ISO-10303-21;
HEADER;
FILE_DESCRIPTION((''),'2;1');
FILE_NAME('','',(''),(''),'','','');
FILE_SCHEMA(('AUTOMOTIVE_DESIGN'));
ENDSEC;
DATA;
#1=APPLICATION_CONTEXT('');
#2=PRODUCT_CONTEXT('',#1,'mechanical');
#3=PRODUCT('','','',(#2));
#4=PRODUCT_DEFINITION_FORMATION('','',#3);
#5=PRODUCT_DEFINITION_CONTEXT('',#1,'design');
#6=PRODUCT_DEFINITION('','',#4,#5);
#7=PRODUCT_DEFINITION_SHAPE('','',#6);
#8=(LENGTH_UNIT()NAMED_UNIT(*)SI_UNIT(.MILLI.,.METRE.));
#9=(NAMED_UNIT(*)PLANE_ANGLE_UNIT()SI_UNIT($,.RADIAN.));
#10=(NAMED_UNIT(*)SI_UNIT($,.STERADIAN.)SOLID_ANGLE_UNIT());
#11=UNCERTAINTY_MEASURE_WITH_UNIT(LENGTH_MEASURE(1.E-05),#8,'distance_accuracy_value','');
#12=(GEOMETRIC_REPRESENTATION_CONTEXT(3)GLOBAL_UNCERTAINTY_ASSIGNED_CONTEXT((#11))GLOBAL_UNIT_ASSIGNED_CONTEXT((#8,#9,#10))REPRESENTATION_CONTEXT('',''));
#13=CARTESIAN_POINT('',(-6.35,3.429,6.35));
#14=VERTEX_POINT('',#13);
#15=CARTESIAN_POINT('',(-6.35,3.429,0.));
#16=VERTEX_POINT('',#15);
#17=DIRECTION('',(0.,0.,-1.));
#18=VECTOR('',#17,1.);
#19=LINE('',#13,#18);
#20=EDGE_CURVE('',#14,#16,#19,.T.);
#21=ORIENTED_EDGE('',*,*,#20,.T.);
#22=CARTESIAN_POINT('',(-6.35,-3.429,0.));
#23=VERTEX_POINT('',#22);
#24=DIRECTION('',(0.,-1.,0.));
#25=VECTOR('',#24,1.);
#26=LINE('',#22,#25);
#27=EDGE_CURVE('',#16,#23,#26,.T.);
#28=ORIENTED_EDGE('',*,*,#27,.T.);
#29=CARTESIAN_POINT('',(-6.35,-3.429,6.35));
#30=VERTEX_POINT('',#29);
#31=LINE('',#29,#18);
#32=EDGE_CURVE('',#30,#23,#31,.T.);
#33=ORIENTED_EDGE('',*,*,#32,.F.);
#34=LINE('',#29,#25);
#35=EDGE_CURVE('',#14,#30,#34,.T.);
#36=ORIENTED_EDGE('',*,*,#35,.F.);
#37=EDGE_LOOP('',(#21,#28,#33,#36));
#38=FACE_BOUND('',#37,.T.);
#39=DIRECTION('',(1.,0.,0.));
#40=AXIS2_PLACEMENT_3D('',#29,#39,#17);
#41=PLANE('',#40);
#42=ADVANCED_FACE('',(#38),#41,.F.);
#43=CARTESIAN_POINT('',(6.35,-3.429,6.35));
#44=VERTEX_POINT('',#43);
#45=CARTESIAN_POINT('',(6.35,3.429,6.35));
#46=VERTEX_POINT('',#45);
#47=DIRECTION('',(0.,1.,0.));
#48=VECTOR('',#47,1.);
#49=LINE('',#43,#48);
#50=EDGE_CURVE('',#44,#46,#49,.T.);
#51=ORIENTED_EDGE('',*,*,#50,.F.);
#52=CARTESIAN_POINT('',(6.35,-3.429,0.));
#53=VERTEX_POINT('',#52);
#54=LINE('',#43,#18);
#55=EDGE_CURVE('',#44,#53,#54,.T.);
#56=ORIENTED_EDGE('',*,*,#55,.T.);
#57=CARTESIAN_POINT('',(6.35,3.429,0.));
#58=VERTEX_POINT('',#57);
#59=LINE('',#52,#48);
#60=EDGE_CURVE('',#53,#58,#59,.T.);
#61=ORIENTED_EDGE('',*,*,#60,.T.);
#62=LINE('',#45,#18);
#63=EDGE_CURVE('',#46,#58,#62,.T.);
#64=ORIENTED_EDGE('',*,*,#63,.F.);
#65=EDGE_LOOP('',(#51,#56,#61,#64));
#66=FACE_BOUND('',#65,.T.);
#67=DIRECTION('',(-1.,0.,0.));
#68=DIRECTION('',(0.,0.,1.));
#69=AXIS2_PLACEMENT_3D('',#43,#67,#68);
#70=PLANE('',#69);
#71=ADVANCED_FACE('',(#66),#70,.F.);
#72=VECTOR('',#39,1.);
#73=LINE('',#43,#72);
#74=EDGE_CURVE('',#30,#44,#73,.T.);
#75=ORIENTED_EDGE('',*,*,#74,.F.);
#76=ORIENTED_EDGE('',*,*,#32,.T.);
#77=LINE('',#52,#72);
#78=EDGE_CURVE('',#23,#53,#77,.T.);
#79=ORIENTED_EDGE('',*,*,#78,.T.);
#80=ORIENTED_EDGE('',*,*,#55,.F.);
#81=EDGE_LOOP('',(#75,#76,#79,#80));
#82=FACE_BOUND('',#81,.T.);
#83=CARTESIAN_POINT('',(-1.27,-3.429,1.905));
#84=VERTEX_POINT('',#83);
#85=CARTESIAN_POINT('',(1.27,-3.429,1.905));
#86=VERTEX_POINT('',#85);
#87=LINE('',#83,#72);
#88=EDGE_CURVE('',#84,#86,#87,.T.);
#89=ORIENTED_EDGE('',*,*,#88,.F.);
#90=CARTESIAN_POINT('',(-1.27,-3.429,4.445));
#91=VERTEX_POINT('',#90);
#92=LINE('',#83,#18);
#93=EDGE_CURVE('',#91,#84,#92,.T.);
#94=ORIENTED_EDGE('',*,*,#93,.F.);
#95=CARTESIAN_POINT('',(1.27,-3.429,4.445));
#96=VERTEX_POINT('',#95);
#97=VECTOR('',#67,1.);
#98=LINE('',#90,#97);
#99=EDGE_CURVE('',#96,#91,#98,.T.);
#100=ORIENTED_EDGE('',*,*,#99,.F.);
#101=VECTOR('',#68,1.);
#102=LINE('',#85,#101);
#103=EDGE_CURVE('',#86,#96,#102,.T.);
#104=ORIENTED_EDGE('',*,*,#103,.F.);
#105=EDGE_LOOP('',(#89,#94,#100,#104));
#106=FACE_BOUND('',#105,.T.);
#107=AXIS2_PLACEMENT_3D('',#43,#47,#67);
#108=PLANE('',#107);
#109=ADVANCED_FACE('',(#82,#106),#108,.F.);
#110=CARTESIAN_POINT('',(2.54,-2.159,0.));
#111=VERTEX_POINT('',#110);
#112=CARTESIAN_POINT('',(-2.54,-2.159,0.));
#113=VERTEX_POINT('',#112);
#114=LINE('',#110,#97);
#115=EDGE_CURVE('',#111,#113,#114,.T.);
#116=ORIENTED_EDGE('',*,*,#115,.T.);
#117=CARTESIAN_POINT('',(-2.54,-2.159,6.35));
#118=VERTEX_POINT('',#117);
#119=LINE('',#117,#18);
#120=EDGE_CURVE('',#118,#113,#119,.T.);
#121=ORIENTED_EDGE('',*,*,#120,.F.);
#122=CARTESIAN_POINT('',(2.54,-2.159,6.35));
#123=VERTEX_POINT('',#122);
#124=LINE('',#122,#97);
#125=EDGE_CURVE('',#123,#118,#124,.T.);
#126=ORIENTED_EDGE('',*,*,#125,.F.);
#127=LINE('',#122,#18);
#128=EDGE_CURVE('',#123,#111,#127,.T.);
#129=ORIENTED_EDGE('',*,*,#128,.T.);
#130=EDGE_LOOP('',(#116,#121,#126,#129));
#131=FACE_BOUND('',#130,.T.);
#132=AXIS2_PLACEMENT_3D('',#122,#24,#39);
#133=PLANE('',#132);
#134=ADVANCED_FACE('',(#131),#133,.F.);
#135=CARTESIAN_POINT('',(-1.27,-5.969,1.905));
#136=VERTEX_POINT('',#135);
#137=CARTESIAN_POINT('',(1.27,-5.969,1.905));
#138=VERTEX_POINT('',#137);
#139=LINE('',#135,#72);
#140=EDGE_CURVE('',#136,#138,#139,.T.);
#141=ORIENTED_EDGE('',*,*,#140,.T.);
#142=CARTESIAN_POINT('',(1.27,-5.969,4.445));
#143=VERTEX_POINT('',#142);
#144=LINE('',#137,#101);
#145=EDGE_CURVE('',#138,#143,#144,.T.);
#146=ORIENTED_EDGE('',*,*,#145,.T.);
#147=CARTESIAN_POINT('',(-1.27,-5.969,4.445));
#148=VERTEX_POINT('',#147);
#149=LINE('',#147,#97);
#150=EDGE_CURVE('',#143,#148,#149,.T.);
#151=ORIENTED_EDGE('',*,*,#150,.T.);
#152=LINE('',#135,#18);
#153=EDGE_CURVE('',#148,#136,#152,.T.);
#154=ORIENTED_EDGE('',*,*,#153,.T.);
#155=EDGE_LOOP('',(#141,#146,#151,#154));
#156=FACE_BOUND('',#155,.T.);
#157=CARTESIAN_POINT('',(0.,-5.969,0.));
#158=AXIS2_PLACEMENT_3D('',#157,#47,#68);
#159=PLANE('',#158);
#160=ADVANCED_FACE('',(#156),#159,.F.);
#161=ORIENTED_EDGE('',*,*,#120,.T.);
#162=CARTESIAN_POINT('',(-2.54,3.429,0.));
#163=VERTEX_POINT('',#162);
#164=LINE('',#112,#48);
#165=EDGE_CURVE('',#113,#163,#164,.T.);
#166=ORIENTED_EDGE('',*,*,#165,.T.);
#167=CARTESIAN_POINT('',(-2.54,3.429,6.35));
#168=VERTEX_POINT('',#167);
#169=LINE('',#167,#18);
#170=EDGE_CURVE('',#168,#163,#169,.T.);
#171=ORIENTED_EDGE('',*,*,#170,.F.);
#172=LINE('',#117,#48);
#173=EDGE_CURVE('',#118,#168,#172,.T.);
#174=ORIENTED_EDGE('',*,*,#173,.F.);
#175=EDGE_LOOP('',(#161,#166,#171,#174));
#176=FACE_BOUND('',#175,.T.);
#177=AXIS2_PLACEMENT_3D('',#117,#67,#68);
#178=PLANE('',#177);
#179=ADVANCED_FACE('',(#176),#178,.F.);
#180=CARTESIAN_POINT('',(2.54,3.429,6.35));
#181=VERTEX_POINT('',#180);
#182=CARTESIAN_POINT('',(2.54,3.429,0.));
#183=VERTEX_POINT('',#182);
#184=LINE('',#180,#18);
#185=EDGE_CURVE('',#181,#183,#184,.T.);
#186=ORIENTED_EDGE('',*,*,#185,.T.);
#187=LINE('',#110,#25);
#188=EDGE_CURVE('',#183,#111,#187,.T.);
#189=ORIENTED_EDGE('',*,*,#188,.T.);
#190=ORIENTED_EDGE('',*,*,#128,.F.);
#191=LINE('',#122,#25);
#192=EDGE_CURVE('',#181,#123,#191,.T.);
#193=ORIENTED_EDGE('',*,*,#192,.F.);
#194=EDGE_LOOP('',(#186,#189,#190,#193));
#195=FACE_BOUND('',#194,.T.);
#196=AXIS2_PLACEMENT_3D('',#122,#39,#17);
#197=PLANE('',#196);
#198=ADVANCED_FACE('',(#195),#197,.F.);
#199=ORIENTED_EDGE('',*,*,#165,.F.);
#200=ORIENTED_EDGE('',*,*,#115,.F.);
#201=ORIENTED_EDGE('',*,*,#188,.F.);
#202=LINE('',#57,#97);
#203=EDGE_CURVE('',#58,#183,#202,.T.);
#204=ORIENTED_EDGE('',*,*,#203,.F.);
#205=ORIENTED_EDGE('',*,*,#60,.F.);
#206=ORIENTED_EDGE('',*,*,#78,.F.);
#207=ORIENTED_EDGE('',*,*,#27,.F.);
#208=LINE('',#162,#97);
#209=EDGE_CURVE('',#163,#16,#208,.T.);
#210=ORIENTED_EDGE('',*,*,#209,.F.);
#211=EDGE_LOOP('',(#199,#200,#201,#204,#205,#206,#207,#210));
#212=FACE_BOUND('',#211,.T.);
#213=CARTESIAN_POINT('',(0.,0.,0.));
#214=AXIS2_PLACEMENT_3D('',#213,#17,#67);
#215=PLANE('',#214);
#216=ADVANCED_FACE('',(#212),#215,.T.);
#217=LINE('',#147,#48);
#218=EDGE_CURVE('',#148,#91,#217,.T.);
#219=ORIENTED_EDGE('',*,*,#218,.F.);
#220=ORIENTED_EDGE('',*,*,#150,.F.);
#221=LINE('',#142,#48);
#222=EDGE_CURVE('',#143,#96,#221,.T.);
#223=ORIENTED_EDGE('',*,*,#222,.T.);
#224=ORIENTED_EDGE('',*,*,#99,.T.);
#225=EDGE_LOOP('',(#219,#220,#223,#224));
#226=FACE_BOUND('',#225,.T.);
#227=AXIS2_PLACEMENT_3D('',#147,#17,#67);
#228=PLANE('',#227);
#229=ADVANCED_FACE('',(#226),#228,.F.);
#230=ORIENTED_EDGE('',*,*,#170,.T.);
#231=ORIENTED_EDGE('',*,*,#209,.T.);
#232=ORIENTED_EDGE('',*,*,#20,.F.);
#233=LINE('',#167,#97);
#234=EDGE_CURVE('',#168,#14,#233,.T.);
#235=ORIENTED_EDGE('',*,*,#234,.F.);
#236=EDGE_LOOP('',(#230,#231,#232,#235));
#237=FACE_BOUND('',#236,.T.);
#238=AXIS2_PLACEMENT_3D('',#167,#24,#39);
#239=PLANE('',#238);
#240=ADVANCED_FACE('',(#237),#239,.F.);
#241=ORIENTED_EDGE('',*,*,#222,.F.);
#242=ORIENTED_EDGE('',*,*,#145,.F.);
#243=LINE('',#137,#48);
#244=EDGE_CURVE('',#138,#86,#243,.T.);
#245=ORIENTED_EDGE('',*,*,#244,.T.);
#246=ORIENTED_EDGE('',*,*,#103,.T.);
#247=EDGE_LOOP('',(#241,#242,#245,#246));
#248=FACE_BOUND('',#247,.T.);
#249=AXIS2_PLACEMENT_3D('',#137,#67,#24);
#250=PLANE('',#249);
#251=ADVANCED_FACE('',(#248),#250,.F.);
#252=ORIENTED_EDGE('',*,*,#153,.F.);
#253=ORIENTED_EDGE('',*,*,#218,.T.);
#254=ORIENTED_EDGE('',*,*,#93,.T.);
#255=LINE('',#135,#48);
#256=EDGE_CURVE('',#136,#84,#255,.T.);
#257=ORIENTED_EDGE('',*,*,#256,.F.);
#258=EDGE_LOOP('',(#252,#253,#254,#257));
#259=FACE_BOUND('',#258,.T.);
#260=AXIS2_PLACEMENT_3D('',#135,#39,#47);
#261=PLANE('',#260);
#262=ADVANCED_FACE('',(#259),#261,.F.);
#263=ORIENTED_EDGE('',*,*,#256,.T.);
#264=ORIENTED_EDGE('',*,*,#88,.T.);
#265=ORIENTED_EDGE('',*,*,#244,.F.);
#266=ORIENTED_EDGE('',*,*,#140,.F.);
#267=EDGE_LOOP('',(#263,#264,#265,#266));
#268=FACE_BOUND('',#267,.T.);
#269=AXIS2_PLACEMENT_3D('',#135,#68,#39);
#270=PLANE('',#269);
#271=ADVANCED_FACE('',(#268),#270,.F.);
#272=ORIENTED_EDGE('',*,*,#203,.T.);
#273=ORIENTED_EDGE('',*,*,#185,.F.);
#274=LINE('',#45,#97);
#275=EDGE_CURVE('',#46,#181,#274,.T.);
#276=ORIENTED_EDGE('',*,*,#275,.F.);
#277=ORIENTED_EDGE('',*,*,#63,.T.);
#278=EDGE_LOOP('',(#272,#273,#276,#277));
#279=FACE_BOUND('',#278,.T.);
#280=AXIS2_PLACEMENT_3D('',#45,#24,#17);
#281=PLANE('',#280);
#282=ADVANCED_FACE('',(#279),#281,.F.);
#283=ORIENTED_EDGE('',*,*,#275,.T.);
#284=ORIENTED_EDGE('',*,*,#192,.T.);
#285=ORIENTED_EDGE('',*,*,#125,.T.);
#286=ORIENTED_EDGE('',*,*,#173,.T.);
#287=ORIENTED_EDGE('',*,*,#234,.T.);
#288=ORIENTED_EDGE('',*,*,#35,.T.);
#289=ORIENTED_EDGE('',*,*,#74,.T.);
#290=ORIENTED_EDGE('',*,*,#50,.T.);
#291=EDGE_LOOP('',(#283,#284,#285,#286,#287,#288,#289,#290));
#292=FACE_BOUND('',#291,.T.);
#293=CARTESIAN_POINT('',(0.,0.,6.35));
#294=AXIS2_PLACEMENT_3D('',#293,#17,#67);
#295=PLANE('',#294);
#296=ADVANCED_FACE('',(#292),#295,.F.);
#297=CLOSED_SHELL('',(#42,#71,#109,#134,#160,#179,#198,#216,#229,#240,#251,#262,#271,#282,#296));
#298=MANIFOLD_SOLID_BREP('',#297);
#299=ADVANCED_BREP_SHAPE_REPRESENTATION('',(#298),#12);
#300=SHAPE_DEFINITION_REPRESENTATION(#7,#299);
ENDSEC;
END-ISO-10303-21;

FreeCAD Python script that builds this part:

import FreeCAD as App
import Part
import Sketcher
from FreeCAD import Vector
Q = App.Units.Quantity


def add_polygon(sketch, points):
    """Adds a closed chain of lines whose ends are joined by coincident constraints."""
    first, n = sketch.GeometryCount, len(points)
    for a, b in zip(points, points[1:] + points[:1]):
        sketch.addGeometry(Part.LineSegment(App.Vector(*a, 0), App.Vector(*b, 0)), False)
    for i in range(n):
        sketch.addConstraint(Sketcher.Constraint("Coincident", first + i, 2, first + (i + 1) % n, 1))

doc = App.newDocument("Part")
body = doc.addObject("PartDesign::Body", "Body")

sketch1 = body.newObject("Sketcher::SketchObject", "Sketch")
sketch1.AttachmentSupport = (doc.getObject("XY_Plane"), [""])
sketch1.MapMode = "FlatFace"
add_polygon(sketch1, [(-6.3, -3.4), (6.3, -3.4), (6.3, 3.4), (2.5, 3.4), (2.5, -2.2), (-2.5, -2.2), (-2.5, 3.4), (-6.3, 3.4)])
sketch1.addConstraint(Sketcher.Constraint("Horizontal", 0))
sketch1.addConstraint(Sketcher.Constraint("Vertical", 1))
sketch1.addConstraint(Sketcher.Constraint("Horizontal", 2))
sketch1.addConstraint(Sketcher.Constraint("Vertical", 3))
sketch1.addConstraint(Sketcher.Constraint("Horizontal", 4))
sketch1.addConstraint(Sketcher.Constraint("Vertical", 5))
sketch1.addConstraint(Sketcher.Constraint("Horizontal", 6))
sketch1.addConstraint(Sketcher.Constraint("Vertical", 7))
sketch1.addConstraint(Sketcher.Constraint("Symmetric", 0, 2, 6, 2, -1, 1))
sketch1.addConstraint(Sketcher.Constraint("Symmetric", 2, 2, 5, 2, -2))
sketch1.addConstraint(Sketcher.Constraint("DistanceX", 0, 1, 0, 2, Q("0.5 in")))
sketch1.addConstraint(Sketcher.Constraint("DistanceX", 4, 2, 4, 1, Q("0.2 in")))
sketch1.addConstraint(Sketcher.Constraint("DistanceY", 1, 1, 1, 2, Q("0.27 in")))
sketch1.addConstraint(Sketcher.Constraint("DistanceY", 3, 2, 3, 1, Q("0.22 in")))
pad1 = body.newObject("PartDesign::Pad", "Pad")
pad1.Profile = sketch1
pad1.Length = Q("0.25 in")

sketch2 = body.newObject("Sketcher::SketchObject", "Sketch001")
sketch2.AttachmentSupport = (doc.getObject("XZ_Plane"), [""])
sketch2.MapMode = "FlatFace"
sketch2.AttachmentOffset = App.Placement(Vector(0, 0, 0.135 * 25.4), App.Rotation())
add_polygon(sketch2, [(-1.3, 4.4), (-1.3, 1.9), (1.3, 1.9), (1.3, 4.4)])
sketch2.addConstraint(Sketcher.Constraint("Vertical", 0))
sketch2.addConstraint(Sketcher.Constraint("Horizontal", 1))
sketch2.addConstraint(Sketcher.Constraint("Vertical", 2))
sketch2.addConstraint(Sketcher.Constraint("Horizontal", 3))
sketch2.addConstraint(Sketcher.Constraint("Equal", 3, 0))
sketch2.addConstraint(Sketcher.Constraint("DistanceX", 1, 1, 1, 2, Q("0.1 in")))
sketch2.addConstraint(Sketcher.Constraint("DistanceX", 0, 2, -1, 1, Q("0.05 in")))
sketch2.addConstraint(Sketcher.Constraint("DistanceY", -1, 1, 0, 2, Q("0.075 in")))
pad2 = body.newObject("PartDesign::Pad", "Pad001")
pad2.Profile = sketch2
pad2.Length = Q("0.1 in")

doc.recompute()
